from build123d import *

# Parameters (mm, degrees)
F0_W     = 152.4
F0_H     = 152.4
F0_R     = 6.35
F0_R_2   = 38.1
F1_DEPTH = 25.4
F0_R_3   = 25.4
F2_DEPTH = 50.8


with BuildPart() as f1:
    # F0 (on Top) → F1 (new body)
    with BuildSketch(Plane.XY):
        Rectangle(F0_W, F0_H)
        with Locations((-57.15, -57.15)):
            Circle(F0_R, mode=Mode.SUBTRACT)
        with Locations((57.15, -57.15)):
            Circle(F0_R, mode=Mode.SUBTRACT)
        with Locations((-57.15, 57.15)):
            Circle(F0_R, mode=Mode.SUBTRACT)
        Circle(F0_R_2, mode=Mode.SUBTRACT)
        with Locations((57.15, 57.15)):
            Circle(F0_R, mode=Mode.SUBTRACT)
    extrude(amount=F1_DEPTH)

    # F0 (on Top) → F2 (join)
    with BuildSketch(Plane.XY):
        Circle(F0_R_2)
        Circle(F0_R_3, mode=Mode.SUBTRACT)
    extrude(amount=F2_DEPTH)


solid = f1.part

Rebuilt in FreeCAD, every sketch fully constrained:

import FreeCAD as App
import Part
import Sketcher

V = App.Vector
Q = App.Units.Quantity


def add_polygon(sketch, points):
    """Adds a closed chain of lines whose ends are joined by coincident constraints."""
    first, n = sketch.GeometryCount, len(points)
    for a, b in zip(points, points[1:] + points[:1]):
        sketch.addGeometry(Part.LineSegment(App.Vector(*a, 0), App.Vector(*b, 0)), False)
    for i in range(n):
        sketch.addConstraint(Sketcher.Constraint("Coincident", first + i, 2, first + (i + 1) % n, 1))

doc = App.newDocument("Part")
params = doc.addObject("Spreadsheet::Sheet", "Params")
for row, (alias, value) in enumerate([
    ("sketch1_diameter", "3 in"),
    ("sketch1_diameter2", "0.5 in"),
    ("sketch1_width", "6 in"),
    ("pad1_length", "1 in"),
    ("sketch2_diameter", "3 in"),
    ("sketch2_diameter2", "2 in"),
    ("pad2_length", "2 in"),
], start=1):
    params.set(f"A{row}", alias)
    params.set(f"B{row}", "=" + value)
    params.setAlias(f"B{row}", alias)

body = doc.addObject("PartDesign::Body", "Body")

# Sketch on XY plane
sketch1 = doc.addObject("Sketcher::SketchObject", "Sketch")
body.addObject(sketch1)
sketch1.AttachmentSupport = (doc.XY_Plane, [""])
sketch1.MapMode = "FlatFace"
add_polygon(sketch1, [(-76, 76), (-76, -76), (76, -76), (76, 76)])  # lines 0-3
sketch1.addGeometry(Part.Circle(V(-57, -57, 0), V(0, 0, 1), 6), False)  # 4
sketch1.addGeometry(Part.Circle(V(57, -57, 0), V(0, 0, 1), 6), False)  # 5
sketch1.addGeometry(Part.Circle(V(-57, 57, 0), V(0, 0, 1), 6), False)  # 6
sketch1.addGeometry(Part.Circle(V(0, 0, 0), V(0, 0, 1), 38), False)  # 7
sketch1.addGeometry(Part.Circle(V(57, 57, 0), V(0, 0, 1), 6), False)  # 8
sketch1.addConstraint(Sketcher.Constraint("Vertical", 0))
sketch1.addConstraint(Sketcher.Constraint("Horizontal", 1))
sketch1.addConstraint(Sketcher.Constraint("Vertical", 2))
sketch1.addConstraint(Sketcher.Constraint("Horizontal", 3))
sketch1.addConstraint(Sketcher.Constraint("Coincident", 7, 3, -1, 1))
sketch1.addConstraint(Sketcher.Constraint("Equal", 4, 5))
sketch1.addConstraint(Sketcher.Constraint("Equal", 5, 6))
sketch1.addConstraint(Sketcher.Constraint("Equal", 6, 8))
sketch1.addConstraint(Sketcher.Constraint("Symmetric", 5, 3, 6, 3, -1, 1))
sketch1.addConstraint(Sketcher.Constraint("Symmetric", 4, 3, 8, 3, -1, 1))
sketch1.addConstraint(Sketcher.Constraint("Symmetric", 0, 2, 2, 2, -1, 1))
sketch1.addConstraint(Sketcher.Constraint("Symmetric", 4, 3, 5, 3, -2))
sketch1.addConstraint(Sketcher.Constraint("Equal", 3, 0))
sketch1.addConstraint(Sketcher.Constraint("Diameter", 7, Q("3 in")))
sketch1.addConstraint(Sketcher.Constraint("Diameter", 4, Q("0.5 in")))
sketch1.addConstraint(Sketcher.Constraint("DistanceX", 1, 1, 1, 2, Q("6 in")))
sketch1.addConstraint(Sketcher.Constraint("DistanceX", 4, 3, 5, 3, Q("4.5 in")))
sketch1.addConstraint(Sketcher.Constraint("DistanceY", 4, 3, 6, 3, Q("4.5 in")))
sketch1.setExpression("Constraints[17]", "Params.sketch1_diameter")
sketch1.setExpression("Constraints[18]", "Params.sketch1_diameter2")
sketch1.setExpression("Constraints[19]", "Params.sketch1_width")
pad1 = doc.addObject("PartDesign::Pad", "Pad")
body.addObject(pad1)
pad1.Profile = sketch1
pad1.setExpression("Length", "Params.pad1_length")

# Sketch on XY plane
sketch2 = doc.addObject("Sketcher::SketchObject", "Sketch001")
body.addObject(sketch2)
sketch2.AttachmentSupport = (doc.XY_Plane, [""])
sketch2.MapMode = "FlatFace"
sketch2.addGeometry(Part.Circle(V(0, 0, 0), V(0, 0, 1), 38), False)
sketch2.addGeometry(Part.Circle(V(0, 0, 0), V(0, 0, 1), 25), False)
sketch2.addConstraint(Sketcher.Constraint("Coincident", 0, 3, -1, 1))
sketch2.addConstraint(Sketcher.Constraint("Coincident", 1, 3, -1, 1))
sketch2.addConstraint(Sketcher.Constraint("Diameter", 0, Q("3 in")))
sketch2.addConstraint(Sketcher.Constraint("Diameter", 1, Q("2 in")))
sketch2.setExpression("Constraints[2]", "Params.sketch2_diameter")
sketch2.setExpression("Constraints[3]", "Params.sketch2_diameter2")
pad2 = doc.addObject("PartDesign::Pad", "Pad001")
body.addObject(pad2)
pad2.Profile = sketch2
pad2.setExpression("Length", "Params.pad2_length")

doc.recompute()
